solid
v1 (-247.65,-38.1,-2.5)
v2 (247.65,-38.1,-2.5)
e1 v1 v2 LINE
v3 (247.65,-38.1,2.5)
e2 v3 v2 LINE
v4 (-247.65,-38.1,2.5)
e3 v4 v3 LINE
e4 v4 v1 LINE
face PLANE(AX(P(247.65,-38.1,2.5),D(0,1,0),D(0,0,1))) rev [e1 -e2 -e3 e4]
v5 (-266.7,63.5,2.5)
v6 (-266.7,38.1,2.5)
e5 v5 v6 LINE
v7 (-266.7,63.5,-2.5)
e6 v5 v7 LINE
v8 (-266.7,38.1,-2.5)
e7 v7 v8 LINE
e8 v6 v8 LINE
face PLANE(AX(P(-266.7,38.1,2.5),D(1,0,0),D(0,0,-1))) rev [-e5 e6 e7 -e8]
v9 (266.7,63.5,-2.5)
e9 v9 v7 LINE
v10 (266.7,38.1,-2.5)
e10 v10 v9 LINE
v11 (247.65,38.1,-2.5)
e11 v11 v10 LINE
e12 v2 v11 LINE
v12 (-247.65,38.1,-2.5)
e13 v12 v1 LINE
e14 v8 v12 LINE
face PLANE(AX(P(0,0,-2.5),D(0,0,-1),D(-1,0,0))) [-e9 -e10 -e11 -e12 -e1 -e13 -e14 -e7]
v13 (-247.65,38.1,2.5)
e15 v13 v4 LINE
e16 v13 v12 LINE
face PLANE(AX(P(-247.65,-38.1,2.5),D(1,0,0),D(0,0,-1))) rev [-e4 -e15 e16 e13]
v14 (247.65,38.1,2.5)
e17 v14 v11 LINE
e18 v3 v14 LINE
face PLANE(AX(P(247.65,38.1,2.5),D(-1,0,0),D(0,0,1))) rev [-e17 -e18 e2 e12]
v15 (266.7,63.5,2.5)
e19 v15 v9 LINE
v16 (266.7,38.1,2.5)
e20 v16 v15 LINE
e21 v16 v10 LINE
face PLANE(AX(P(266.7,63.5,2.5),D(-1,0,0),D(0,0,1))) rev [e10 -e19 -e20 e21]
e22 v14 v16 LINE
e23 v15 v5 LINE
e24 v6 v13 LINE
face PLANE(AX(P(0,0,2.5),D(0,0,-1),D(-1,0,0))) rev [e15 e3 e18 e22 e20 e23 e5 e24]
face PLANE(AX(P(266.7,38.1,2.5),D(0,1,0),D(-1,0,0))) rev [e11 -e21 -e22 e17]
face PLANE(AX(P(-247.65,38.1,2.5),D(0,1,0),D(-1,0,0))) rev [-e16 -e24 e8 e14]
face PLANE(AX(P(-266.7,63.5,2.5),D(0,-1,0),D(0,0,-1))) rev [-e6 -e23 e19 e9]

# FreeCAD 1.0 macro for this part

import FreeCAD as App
import Part
import Sketcher
from FreeCAD import Vector
Q = App.Units.Quantity


def add_polygon(sketch, points):
    """Adds a closed chain of lines whose ends are joined by coincident constraints."""
    first, n = sketch.GeometryCount, len(points)
    for a, b in zip(points, points[1:] + points[:1]):
        sketch.addGeometry(Part.LineSegment(App.Vector(*a, 0), App.Vector(*b, 0)), False)
    for i in range(n):
        sketch.addConstraint(Sketcher.Constraint("Coincident", first + i, 2, first + (i + 1) % n, 1))

doc = App.newDocument("Part")
body = doc.addObject("PartDesign::Body", "Body")

# Sketch on XY plane
sketch1 = doc.addObject("Sketcher::SketchObject", "Sketch")
body.addObject(sketch1)
sketch1.AttachmentSupport = (doc.XY_Plane, [""])
sketch1.MapMode = "FlatFace"
add_polygon(sketch1, [(266.7, 63.5), (-266.7, 63.5), (-266.7, 38.1), (-247.65, 38.1), (-247.65, -38.1), (247.65, -38.1), (247.65, 38.1), (266.7, 38.1)])  # lines 0-7
sketch1.addConstraint([
    Sketcher.Constraint("Horizontal", 0),
    Sketcher.Constraint("Vertical", 1),
    Sketcher.Constraint("Horizontal", 2),
    Sketcher.Constraint("Vertical", 3),
    Sketcher.Constraint("Horizontal", 4),
    Sketcher.Constraint("Vertical", 5),
    Sketcher.Constraint("Horizontal", 6),
    Sketcher.Constraint("Vertical", 7),
    Sketcher.Constraint("Symmetric", 2, 2, 4, 2, -1, 1),
    Sketcher.Constraint("Symmetric", 1, 2, 6, 2, -2),
    Sketcher.Constraint("DistanceX", 0, 2, 0, 1, Q("21 in")),
    Sketcher.Constraint("DistanceY", 1, 2, 1, 1, Q("1 in")),
    Sketcher.Constraint("DistanceY", 3, 2, 3, 1, Q("3 in")),
    Sketcher.Constraint("DistanceX", 4, 1, 4, 2, Q("19.5 in")),
])
pad1 = doc.addObject("PartDesign::Pad", "Pad")
body.addObject(pad1)
pad1.Profile = sketch1
pad1.Length = 5
pad1.Midplane = True

doc.recompute()
